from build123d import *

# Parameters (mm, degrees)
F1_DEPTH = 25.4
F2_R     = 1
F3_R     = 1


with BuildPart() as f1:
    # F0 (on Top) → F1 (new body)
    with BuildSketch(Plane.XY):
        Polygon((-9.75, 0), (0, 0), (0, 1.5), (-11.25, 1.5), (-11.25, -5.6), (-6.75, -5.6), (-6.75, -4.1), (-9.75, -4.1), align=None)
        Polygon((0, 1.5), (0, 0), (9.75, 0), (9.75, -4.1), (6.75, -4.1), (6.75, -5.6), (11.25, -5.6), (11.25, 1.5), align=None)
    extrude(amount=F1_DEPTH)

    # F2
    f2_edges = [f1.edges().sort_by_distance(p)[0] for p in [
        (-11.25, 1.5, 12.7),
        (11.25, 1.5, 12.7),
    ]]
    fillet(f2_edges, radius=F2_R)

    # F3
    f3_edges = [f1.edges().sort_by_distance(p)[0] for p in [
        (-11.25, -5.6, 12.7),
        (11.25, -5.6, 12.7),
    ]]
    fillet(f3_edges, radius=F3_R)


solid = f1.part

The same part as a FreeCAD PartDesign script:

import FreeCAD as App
import Part
import Sketcher

V = App.Vector
Q = App.Units.Quantity


def edges_at(feature, points):
    """Names of the edges that pass closest to the given points."""
    edges = feature.Shape.Edges
    near = lambda p: min(range(len(edges)), key=lambda i: edges[i].distToShape(Part.Vertex(*p))[0])
    return sorted({f"Edge{near(p) + 1}" for p in points})


def add_polygon(sketch, points):
    """Adds a closed chain of lines whose ends are joined by coincident constraints."""
    first, n = sketch.GeometryCount, len(points)
    for a, b in zip(points, points[1:] + points[:1]):
        sketch.addGeometry(Part.LineSegment(App.Vector(*a, 0), App.Vector(*b, 0)), False)
    for i in range(n):
        sketch.addConstraint(Sketcher.Constraint("Coincident", first + i, 2, first + (i + 1) % n, 1))

doc = App.newDocument("Part")
params = doc.addObject("Spreadsheet::Sheet", "Params")
for row, (alias, value) in enumerate([
    ("sketch1_width", "3 mm"),
    ("sketch1_width2", "19.5 mm"),
    ("sketch1_width3", "4.5 mm"),
    ("sketch1_height", "4.1 mm"),
    ("sketch1_height2", "1.5 mm"),
    ("pad1_length", "25.4 mm"),
    ("fillet_radius", "1 mm"),
    ("fillet2_radius", "1 mm"),
], start=1):
    params.set(f"A{row}", alias)
    params.set(f"B{row}", "=" + value)
    params.setAlias(f"B{row}", alias)

body = doc.addObject("PartDesign::Body", "Body")

# Sketch on XY plane
sketch1 = body.newObject("Sketcher::SketchObject", "Sketch")
sketch1.AttachmentSupport = (doc.getObject("XY_Plane"), [""])
sketch1.MapMode = "FlatFace"
add_polygon(sketch1, [(-9.8, 0), (9.8, 0), (9.8, -4.1), (6.8, -4.1), (6.8, -5.6), (11.2, -5.6), (11.2, 1.5), (-11.2, 1.5), (-11.2, -5.6), (-6.8, -5.6), (-6.8, -4.1), (-9.8, -4.1)])  # lines 0-11
sketch1.addConstraint([
    Sketcher.Constraint("Horizontal", 0),
    Sketcher.Constraint("Vertical", 1),
    Sketcher.Constraint("Horizontal", 2),
    Sketcher.Constraint("Vertical", 3),
    Sketcher.Constraint("Horizontal", 4),
    Sketcher.Constraint("Vertical", 5),
    Sketcher.Constraint("Horizontal", 6),
    Sketcher.Constraint("Vertical", 7),
    Sketcher.Constraint("Horizontal", 8),
    Sketcher.Constraint("Vertical", 9),
    Sketcher.Constraint("Horizontal", 10),
    Sketcher.Constraint("Vertical", 11),
    Sketcher.Constraint("Symmetric", 0, 2, 11, 2, -1, 1),
    Sketcher.Constraint("Symmetric", 4, 2, 7, 2, -2),
    Sketcher.Constraint("Symmetric", 2, 2, 9, 2, -2),
    Sketcher.Constraint("DistanceX", 2, 2, 2, 1, Q("3 mm")),
    Sketcher.Constraint("DistanceX", 0, 1, 0, 2, Q("19.5 mm")),
    Sketcher.Constraint("DistanceX", 4, 1, 4, 2, Q("4.5 mm")),
    Sketcher.Constraint("DistanceY", 1, 2, 1, 1, Q("4.1 mm")),
    Sketcher.Constraint("DistanceY", 3, 2, 3, 1, Q("1.5 mm")),
    Sketcher.Constraint("DistanceY", 5, 1, 5, 2, Q("7.1 mm")),
])
sketch1.setExpression("Constraints[27]", "Params.sketch1_width")
sketch1.setExpression("Constraints[28]", "Params.sketch1_width2")
sketch1.setExpression("Constraints[29]", "Params.sketch1_width3")
sketch1.setExpression("Constraints[30]", "Params.sketch1_height")
sketch1.setExpression("Constraints[31]", "Params.sketch1_height2")
pad1 = body.newObject("PartDesign::Pad", "Pad")
pad1.Profile = sketch1
pad1.setExpression("Length", "Params.pad1_length")
doc.recompute()

fillet = body.newObject("PartDesign::Fillet", "Fillet")
fillet.Base = (pad1, edges_at(pad1, [(-11.25, 1.5, 12.7), (11.25, 1.5, 12.7)]))
fillet.setExpression("Radius", "Params.fillet_radius")
doc.recompute()

fillet2 = body.newObject("PartDesign::Fillet", "Fillet001")
fillet2.Base = (fillet, edges_at(fillet, [(-11.25, -5.6, 12.7), (11.25, -5.6, 12.7)]))
fillet2.setExpression("Radius", "Params.fillet2_radius")

doc.recompute()
